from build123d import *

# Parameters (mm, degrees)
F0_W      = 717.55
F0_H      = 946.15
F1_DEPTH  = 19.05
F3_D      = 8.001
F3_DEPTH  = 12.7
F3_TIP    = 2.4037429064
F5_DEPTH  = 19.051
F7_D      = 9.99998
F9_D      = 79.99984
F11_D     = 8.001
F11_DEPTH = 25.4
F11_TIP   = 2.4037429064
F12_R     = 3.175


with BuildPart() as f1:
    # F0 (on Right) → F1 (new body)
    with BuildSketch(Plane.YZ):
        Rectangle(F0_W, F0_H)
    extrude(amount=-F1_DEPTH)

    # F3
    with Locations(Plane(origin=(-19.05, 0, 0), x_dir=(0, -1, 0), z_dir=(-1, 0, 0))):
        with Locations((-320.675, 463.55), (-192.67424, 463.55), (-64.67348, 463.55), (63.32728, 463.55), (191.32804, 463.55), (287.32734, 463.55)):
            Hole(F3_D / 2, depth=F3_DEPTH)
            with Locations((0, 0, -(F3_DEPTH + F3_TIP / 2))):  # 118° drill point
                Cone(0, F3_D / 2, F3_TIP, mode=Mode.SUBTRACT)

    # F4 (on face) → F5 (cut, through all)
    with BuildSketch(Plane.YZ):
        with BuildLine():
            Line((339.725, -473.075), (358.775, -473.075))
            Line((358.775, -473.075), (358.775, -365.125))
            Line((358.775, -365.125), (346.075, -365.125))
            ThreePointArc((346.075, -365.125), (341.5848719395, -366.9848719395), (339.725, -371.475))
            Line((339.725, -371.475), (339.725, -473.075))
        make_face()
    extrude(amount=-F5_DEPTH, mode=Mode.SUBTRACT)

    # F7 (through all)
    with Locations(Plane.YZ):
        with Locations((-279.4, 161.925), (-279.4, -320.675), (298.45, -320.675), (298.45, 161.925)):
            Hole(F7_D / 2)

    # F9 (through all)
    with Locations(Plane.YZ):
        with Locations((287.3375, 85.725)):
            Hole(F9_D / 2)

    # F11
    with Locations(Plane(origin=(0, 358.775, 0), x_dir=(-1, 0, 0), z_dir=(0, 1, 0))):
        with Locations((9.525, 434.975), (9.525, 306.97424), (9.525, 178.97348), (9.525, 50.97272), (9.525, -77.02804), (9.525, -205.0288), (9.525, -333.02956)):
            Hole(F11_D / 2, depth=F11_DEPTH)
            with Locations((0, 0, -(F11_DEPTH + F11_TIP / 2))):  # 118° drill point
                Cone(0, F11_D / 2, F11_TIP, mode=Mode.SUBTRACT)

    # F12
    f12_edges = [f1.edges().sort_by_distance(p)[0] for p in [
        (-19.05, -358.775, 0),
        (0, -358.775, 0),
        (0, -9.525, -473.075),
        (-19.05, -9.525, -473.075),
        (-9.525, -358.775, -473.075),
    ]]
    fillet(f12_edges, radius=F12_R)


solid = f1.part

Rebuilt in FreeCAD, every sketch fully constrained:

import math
import FreeCAD as App
import Part
import Sketcher
Q = App.Units.Quantity


def edges_at(feature, points):
    """Names of the edges that pass closest to the given points."""
    edges = feature.Shape.Edges
    near = lambda p: min(range(len(edges)), key=lambda i: edges[i].distToShape(Part.Vertex(*p))[0])
    return sorted({f"Edge{near(p) + 1}" for p in points})

doc = App.newDocument("Part")
body = doc.addObject("PartDesign::Body", "Body")

sketch1 = body.newObject("Sketcher::SketchObject", "Sketch")
sketch1.AttachmentSupport = (doc.getObject("YZ_Plane"), [""])
sketch1.MapMode = "FlatFace"
sketch1.addGeometry([
    Part.LineSegment(App.Vector(-359, 473, 0), App.Vector(-359, -473, 0)),
    Part.LineSegment(App.Vector(-359, -473, 0), App.Vector(359, -473, 0)),
    Part.LineSegment(App.Vector(359, -473, 0), App.Vector(359, 473, 0)),
    Part.LineSegment(App.Vector(359, 473, 0), App.Vector(-359, 473, 0)),
], False)
sketch1.addConstraint([
    Sketcher.Constraint("Coincident", 0, 2, 1, 1),
    Sketcher.Constraint("Coincident", 1, 2, 2, 1),
    Sketcher.Constraint("Coincident", 2, 2, 3, 1),
    Sketcher.Constraint("Coincident", 3, 2, 0, 1),
    Sketcher.Constraint("Vertical", 0),
    Sketcher.Constraint("Horizontal", 1),
    Sketcher.Constraint("Vertical", 2),
    Sketcher.Constraint("Horizontal", 3),
    Sketcher.Constraint("Symmetric", 0, 2, 2, 2, -1, 1),
    Sketcher.Constraint("DistanceX", 1, 1, 1, 2, Q("28.25 in")),
    Sketcher.Constraint("DistanceY", 0, 2, 0, 1, Q("37.25 in")),
])
pad1 = body.newObject("PartDesign::Pad", "Pad")
pad1.Profile = sketch1
pad1.Length = Q("0.75 in")
pad1.Reversed = True

sketch2 = body.newObject("Sketcher::SketchObject", "Sketch001")
sketch2.AttachmentSupport = (doc.getObject("YZ_Plane"), [""])
sketch2.MapMode = "FlatFace"
sketch2.AttachmentOffset = App.Placement(App.Vector(0, 0, -0.75 * 25.4), App.Rotation())
sketch2.addGeometry([
    Part.Circle(App.Vector(320.7, 463.6, 0), App.Vector(0, 0, 1), 4),
    Part.Circle(App.Vector(192.7, 463.6, 0), App.Vector(0, 0, 1), 4),
    Part.Circle(App.Vector(64.7, 463.6, 0), App.Vector(0, 0, 1), 4),
    Part.Circle(App.Vector(-63.3, 463.6, 0), App.Vector(0, 0, 1), 4),
    Part.Circle(App.Vector(-191.3, 463.6, 0), App.Vector(0, 0, 1), 4),
    Part.Circle(App.Vector(-287.3, 463.6, 0), App.Vector(0, 0, 1), 4),
], False)
sketch2.addConstraint([
    Sketcher.Constraint("Equal", 0, 1),
    Sketcher.Constraint("Equal", 1, 2),
    Sketcher.Constraint("Equal", 2, 3),
    Sketcher.Constraint("Equal", 3, 4),
    Sketcher.Constraint("Equal", 4, 5),
    Sketcher.Constraint("Horizontal", 0, 3, 1, 3),
    Sketcher.Constraint("Horizontal", 1, 3, 2, 3),
    Sketcher.Constraint("Horizontal", 2, 3, 3, 3),
    Sketcher.Constraint("Horizontal", 3, 3, 4, 3),
    Sketcher.Constraint("Horizontal", 4, 3, 5, 3),
    Sketcher.Constraint("Diameter", 0, Q("0.315 in")),
    Sketcher.Constraint("DistanceY", -1, 1, 0, 3, Q("18.25 in")),
    Sketcher.Constraint("DistanceX", -1, 1, 0, 3, Q("12.625 in")),
    Sketcher.Constraint("DistanceX", -1, 1, 1, 3, Q("7.5856 in")),
    Sketcher.Constraint("DistanceX", -1, 1, 2, 3, Q("2.5462 in")),
    Sketcher.Constraint("DistanceX", 3, 3, -1, 1, Q("2.4932 in")),
    Sketcher.Constraint("DistanceX", 4, 3, -1, 1, Q("7.5326 in")),
    Sketcher.Constraint("DistanceX", 5, 3, -1, 1, Q("11.3121 in")),
])
doc.recompute()
hole = body.newObject("PartDesign::Hole", "Hole")
hole.Profile = sketch2
hole.ThreadType = "None"
hole.Diameter = Q("0.315 in")
hole.DepthType = "Dimension"
hole.Depth = Q("0.5 in")
hole.DrillPoint = "Angled"
hole.DrillPointAngle = 118
hole.Reversed = True

sketch3 = body.newObject("Sketcher::SketchObject", "Sketch002")
sketch3.AttachmentSupport = (doc.getObject("YZ_Plane"), [""])
sketch3.MapMode = "FlatFace"
sketch3.addGeometry([
    Part.LineSegment(App.Vector(340, -473, 0), App.Vector(359, -473, 0)),
    Part.LineSegment(App.Vector(359, -473, 0), App.Vector(359, -365, 0)),
    Part.LineSegment(App.Vector(359, -365, 0), App.Vector(346, -365, 0)),
    Part.ArcOfCircle(Part.Circle(App.Vector(346, -371, 0), App.Vector(0, 0, 1), 6), math.radians(90), math.radians(180)),
    Part.LineSegment(App.Vector(340, -371, 0), App.Vector(340, -473, 0)),
], False)
sketch3.addConstraint([
    Sketcher.Constraint("Coincident", 0, 2, 1, 1),
    Sketcher.Constraint("Coincident", 1, 2, 2, 1),
    Sketcher.Constraint("Tangent", 2, 2, 3, 1),
    Sketcher.Constraint("Tangent", 3, 2, 4, 1),
    Sketcher.Constraint("Coincident", 4, 2, 0, 1),
    Sketcher.Constraint("Horizontal", 0),
    Sketcher.Constraint("Vertical", 1),
    Sketcher.Constraint("Horizontal", 2),
    Sketcher.Constraint("Vertical", 4),
    Sketcher.Constraint("DistanceY", 4, 2, 4, 1, Q("4 in")),
    Sketcher.Constraint("Radius", 3, Q("0.25 in")),
    Sketcher.Constraint("DistanceX", 2, 2, 2, 1, Q("0.5 in")),
    Sketcher.Constraint("DistanceX", -1, 1, 3, 3, Q("13.625 in")),
    Sketcher.Constraint("DistanceY", 3, 3, -1, 1, Q("14.625 in")),
])
pocket1 = body.newObject("PartDesign::Pocket", "Pocket")
pocket1.Profile = sketch3
pocket1.Type = "ThroughAll"

sketch4 = body.newObject("Sketcher::SketchObject", "Sketch003")
sketch4.AttachmentSupport = (doc.getObject("YZ_Plane"), [""])
sketch4.MapMode = "FlatFace"
sketch4.addGeometry([
    Part.Circle(App.Vector(-279.4, 161.9, 0), App.Vector(0, 0, 1), 5),
    Part.Circle(App.Vector(-279.4, -320.7, 0), App.Vector(0, 0, 1), 5),
    Part.Circle(App.Vector(298.4, -320.7, 0), App.Vector(0, 0, 1), 5),
    Part.Circle(App.Vector(298.4, 161.9, 0), App.Vector(0, 0, 1), 5),
], False)
sketch4.addConstraint([
    Sketcher.Constraint("Equal", 0, 1),
    Sketcher.Constraint("Equal", 1, 2),
    Sketcher.Constraint("Equal", 2, 3),
    Sketcher.Constraint("Horizontal", 1, 3, 2, 3),
    Sketcher.Constraint("Horizontal", 0, 3, 3, 3),
    Sketcher.Constraint("Vertical", 0, 3, 1, 3),
    Sketcher.Constraint("Vertical", 2, 3, 3, 3),
    Sketcher.Constraint("DistanceX", 0, 3, -1, 1, Q("11 in")),
    Sketcher.Constraint("DistanceY", 1, 3, 0, 3, Q("19 in")),
    Sketcher.Constraint("Diameter", 0, Q("0.3937 in")),
    Sketcher.Constraint("DistanceX", -1, 1, 2, 3, Q("11.75 in")),
    Sketcher.Constraint("DistanceY", -1, 1, 0, 3, Q("6.375 in")),
])
doc.recompute()
hole2 = body.newObject("PartDesign::Hole", "Hole001")
hole2.Profile = sketch4
hole2.ThreadType = "None"
hole2.Diameter = Q("0.3937 in")
hole2.DepthType = "ThroughAll"

sketch5 = body.newObject("Sketcher::SketchObject", "Sketch004")
sketch5.AttachmentSupport = (doc.getObject("YZ_Plane"), [""])
sketch5.MapMode = "FlatFace"
sketch5.addGeometry(Part.Circle(App.Vector(287, 86, 0), App.Vector(0, 0, 1), 40), False)
sketch5.addConstraint([
    Sketcher.Constraint("Diameter", 0, Q("3.1496 in")),
    Sketcher.Constraint("DistanceX", -1, 1, 0, 3, Q("11.3125 in")),
    Sketcher.Constraint("DistanceY", -1, 1, 0, 3, Q("3.375 in")),
])
doc.recompute()
hole3 = body.newObject("PartDesign::Hole", "Hole002")
hole3.Profile = sketch5
hole3.ThreadType = "None"
hole3.Diameter = Q("3.1496 in")
hole3.DepthType = "ThroughAll"

sketch6 = body.newObject("Sketcher::SketchObject", "Sketch005")
sketch6.AttachmentSupport = (doc.getObject("XZ_Plane"), [""])
sketch6.MapMode = "FlatFace"
sketch6.AttachmentOffset = App.Placement(App.Vector(0, 0, -14.125 * 25.4), App.Rotation())
sketch6.addGeometry([
    Part.Circle(App.Vector(-9.5, 435, 0), App.Vector(0, 0, 1), 4),
    Part.Circle(App.Vector(-9.5, 307, 0), App.Vector(0, 0, 1), 4),
    Part.Circle(App.Vector(-9.5, 179, 0), App.Vector(0, 0, 1), 4),
    Part.Circle(App.Vector(-9.5, 51, 0), App.Vector(0, 0, 1), 4),
    Part.Circle(App.Vector(-9.5, -77, 0), App.Vector(0, 0, 1), 4),
    Part.Circle(App.Vector(-9.5, -205, 0), App.Vector(0, 0, 1), 4),
    Part.Circle(App.Vector(-9.5, -333, 0), App.Vector(0, 0, 1), 4),
], False)
sketch6.addConstraint([
    Sketcher.Constraint("Equal", 0, 1),
    Sketcher.Constraint("Equal", 1, 2),
    Sketcher.Constraint("Equal", 2, 3),
    Sketcher.Constraint("Equal", 3, 4),
    Sketcher.Constraint("Equal", 4, 5),
    Sketcher.Constraint("Equal", 5, 6),
    Sketcher.Constraint("Vertical", 0, 3, 1, 3),
    Sketcher.Constraint("Vertical", 1, 3, 2, 3),
    Sketcher.Constraint("Vertical", 2, 3, 3, 3),
    Sketcher.Constraint("Vertical", 3, 3, 4, 3),
    Sketcher.Constraint("Vertical", 4, 3, 5, 3),
    Sketcher.Constraint("Vertical", 5, 3, 6, 3),
    Sketcher.Constraint("Diameter", 0, Q("0.315 in")),
    Sketcher.Constraint("DistanceX", 0, 3, -1, 1, Q("0.375 in")),
    Sketcher.Constraint("DistanceY", -1, 1, 0, 3, Q("17.125 in")),
    Sketcher.Constraint("DistanceY", 5, 3, -1, 1, Q("8.072 in")),
    Sketcher.Constraint("DistanceY", 6, 3, 1, 3, Q("25.197 in")),
    Sketcher.Constraint("DistanceY", -1, 1, 1, 3, Q("12.0856 in")),
    Sketcher.Constraint("DistanceY", -1, 1, 2, 3, Q("7.0462 in")),
    Sketcher.Constraint("DistanceY", -1, 1, 3, 3, Q("2.0068 in")),
    Sketcher.Constraint("DistanceY", 4, 3, -1, 1, Q("3.0326 in")),
])
doc.recompute()
hole4 = body.newObject("PartDesign::Hole", "Hole003")
hole4.Profile = sketch6
hole4.ThreadType = "None"
hole4.Diameter = Q("0.315 in")
hole4.DepthType = "Dimension"
hole4.Depth = Q("1 in")
hole4.DrillPoint = "Angled"
hole4.DrillPointAngle = 118
hole4.Reversed = True
doc.recompute()

fillet = body.newObject("PartDesign::Fillet", "Fillet")
fillet.Base = (hole4, edges_at(hole4, [
    (-19.05, -358.775, 0),
    (0, -358.775, 0),
    (0, -9.525, -473.075),
    (-19.05, -9.525, -473.075),
    (-9.525, -358.775, -473.075),
]))
fillet.Radius = Q("0.125 in")

doc.recompute()
